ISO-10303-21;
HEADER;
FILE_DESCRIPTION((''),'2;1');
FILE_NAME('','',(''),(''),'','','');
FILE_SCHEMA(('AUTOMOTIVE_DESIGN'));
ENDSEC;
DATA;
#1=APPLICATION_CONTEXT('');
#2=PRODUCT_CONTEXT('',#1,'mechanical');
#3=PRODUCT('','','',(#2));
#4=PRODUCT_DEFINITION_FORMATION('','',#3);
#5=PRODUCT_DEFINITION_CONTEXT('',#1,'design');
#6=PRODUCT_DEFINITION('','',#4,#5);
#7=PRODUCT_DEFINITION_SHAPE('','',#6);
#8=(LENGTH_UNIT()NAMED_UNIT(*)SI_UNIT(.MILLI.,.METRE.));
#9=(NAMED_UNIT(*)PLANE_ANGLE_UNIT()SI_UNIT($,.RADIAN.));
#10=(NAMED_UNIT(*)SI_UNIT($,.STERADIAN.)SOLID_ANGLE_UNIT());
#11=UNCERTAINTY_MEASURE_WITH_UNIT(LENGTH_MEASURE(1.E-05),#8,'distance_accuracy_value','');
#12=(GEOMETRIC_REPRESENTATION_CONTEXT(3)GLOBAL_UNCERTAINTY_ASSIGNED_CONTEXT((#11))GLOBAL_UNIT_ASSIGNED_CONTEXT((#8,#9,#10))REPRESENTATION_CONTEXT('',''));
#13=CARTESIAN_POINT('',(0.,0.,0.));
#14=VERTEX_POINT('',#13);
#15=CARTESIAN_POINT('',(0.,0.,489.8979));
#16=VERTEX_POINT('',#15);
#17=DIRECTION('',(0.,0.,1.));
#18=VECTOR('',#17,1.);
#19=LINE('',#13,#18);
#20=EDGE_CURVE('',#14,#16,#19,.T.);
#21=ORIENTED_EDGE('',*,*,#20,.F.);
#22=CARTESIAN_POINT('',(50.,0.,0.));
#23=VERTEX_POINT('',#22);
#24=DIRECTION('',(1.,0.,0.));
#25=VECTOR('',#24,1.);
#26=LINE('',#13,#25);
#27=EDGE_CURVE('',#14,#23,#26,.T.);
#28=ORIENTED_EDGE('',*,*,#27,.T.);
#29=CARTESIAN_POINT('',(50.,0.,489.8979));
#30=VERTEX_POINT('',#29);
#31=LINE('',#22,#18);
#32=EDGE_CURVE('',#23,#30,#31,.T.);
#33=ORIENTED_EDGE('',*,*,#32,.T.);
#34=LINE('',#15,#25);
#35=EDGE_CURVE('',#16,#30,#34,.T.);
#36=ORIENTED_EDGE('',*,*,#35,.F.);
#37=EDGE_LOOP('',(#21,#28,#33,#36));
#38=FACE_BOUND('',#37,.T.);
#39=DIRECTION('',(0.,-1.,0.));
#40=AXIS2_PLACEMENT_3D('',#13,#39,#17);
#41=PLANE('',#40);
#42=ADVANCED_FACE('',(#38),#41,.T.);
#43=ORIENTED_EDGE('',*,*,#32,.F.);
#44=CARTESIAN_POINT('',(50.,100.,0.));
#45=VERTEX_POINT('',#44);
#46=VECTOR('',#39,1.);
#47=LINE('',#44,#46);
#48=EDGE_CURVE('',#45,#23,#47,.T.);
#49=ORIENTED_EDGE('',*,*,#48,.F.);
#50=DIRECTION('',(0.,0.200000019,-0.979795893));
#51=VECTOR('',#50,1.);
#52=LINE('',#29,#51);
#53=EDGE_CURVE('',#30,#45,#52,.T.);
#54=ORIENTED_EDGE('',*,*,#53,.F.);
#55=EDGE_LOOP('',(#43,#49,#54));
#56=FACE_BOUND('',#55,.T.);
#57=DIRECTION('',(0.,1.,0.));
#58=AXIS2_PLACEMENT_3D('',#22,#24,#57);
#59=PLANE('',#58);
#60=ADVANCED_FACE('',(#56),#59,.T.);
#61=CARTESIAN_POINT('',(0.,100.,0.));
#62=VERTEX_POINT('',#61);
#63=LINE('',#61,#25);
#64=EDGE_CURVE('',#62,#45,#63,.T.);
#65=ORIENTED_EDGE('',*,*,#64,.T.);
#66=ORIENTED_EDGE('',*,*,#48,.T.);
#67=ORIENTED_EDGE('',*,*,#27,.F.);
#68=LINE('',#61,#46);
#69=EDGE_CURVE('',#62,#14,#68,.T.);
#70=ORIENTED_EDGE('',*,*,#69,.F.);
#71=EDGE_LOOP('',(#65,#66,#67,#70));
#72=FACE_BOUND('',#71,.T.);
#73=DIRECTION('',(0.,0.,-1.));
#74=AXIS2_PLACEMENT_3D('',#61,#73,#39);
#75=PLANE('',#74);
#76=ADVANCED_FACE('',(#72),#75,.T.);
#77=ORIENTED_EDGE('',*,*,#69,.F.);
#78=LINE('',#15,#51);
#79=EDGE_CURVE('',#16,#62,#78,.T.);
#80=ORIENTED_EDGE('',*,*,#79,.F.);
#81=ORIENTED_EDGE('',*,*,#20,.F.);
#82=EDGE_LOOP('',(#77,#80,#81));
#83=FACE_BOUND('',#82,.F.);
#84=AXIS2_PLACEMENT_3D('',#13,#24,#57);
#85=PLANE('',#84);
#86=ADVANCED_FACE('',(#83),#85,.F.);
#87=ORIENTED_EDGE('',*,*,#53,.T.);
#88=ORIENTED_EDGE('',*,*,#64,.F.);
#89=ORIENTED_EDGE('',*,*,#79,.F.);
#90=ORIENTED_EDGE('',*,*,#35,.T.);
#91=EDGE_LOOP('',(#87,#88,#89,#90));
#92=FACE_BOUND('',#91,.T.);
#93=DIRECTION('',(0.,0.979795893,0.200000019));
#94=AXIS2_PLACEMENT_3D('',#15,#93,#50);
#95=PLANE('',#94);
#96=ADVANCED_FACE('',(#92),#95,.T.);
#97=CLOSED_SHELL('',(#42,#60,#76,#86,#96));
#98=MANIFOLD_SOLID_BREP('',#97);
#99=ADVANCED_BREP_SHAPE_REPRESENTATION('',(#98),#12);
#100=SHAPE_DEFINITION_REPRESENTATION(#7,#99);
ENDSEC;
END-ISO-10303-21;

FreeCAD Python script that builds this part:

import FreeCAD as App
import Part
import Sketcher
Q = App.Units.Quantity

doc = App.newDocument("Part")
body = doc.addObject("PartDesign::Body", "Body")

# Sketch on YZ plane
sketch1 = doc.addObject("Sketcher::SketchObject", "Sketch")
body.addObject(sketch1)
sketch1.AttachmentSupport = (doc.YZ_Plane, [""])
sketch1.MapMode = "FlatFace"
sketch1.addGeometry(Part.LineSegment(App.Vector(0, 490, 0), App.Vector(0, 0, 0)), False)
sketch1.addGeometry(Part.LineSegment(App.Vector(0, 0, 0), App.Vector(100, 0, 0)), False)
sketch1.addGeometry(Part.LineSegment(App.Vector(100, 0, 0), App.Vector(0, 490, 0)), False)
sketch1.addConstraint(Sketcher.Constraint("Coincident", 0, 2, 1, 1))
sketch1.addConstraint(Sketcher.Constraint("Coincident", 1, 2, 2, 1))
sketch1.addConstraint(Sketcher.Constraint("Coincident", 2, 2, 0, 1))
sketch1.addConstraint(Sketcher.Constraint("Vertical", 0))
sketch1.addConstraint(Sketcher.Constraint("Horizontal", 1))
sketch1.addConstraint(Sketcher.Constraint("Coincident", 0, 2, -1, 1))
sketch1.addConstraint(Sketcher.Constraint("DistanceX", 1, 1, 1, 2, Q("100 mm")))
sketch1.addConstraint(Sketcher.Constraint("Distance", 2, Q("500 mm")))
pad1 = doc.addObject("PartDesign::Pad", "Pad")
body.addObject(pad1)
pad1.Profile = sketch1
pad1.Length = 50

doc.recompute()
